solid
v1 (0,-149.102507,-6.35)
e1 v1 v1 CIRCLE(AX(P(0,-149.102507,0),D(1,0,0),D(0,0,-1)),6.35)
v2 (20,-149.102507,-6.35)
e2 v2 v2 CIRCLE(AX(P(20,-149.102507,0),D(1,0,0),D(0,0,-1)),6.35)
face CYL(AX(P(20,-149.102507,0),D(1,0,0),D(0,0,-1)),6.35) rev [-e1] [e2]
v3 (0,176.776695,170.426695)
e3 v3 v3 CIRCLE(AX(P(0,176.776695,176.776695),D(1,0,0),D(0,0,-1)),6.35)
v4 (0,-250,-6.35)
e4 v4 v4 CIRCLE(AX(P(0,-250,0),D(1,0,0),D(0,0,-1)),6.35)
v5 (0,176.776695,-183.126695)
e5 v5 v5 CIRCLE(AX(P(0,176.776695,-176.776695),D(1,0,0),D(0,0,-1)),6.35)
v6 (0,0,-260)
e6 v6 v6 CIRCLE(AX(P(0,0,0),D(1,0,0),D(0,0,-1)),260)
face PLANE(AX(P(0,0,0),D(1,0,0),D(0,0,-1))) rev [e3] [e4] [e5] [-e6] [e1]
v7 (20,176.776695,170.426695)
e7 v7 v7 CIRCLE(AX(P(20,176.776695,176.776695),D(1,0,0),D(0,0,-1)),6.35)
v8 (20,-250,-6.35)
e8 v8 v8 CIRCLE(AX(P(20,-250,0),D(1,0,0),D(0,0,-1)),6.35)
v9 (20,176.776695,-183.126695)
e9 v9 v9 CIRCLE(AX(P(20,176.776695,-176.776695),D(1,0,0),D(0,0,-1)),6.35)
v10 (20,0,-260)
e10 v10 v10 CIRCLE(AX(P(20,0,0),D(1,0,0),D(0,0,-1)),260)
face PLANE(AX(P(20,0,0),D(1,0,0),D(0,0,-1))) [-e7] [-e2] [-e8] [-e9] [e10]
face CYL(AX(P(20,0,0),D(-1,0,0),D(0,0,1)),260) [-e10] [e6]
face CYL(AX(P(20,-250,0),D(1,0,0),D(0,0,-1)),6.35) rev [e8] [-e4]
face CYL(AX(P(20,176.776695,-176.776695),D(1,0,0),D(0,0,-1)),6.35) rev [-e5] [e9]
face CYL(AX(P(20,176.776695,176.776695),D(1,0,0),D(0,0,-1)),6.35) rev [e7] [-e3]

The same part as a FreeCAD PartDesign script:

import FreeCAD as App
import Part
import Sketcher
Q = App.Units.Quantity

doc = App.newDocument("Part")
body = doc.addObject("PartDesign::Body", "Body")

# Sketch on YZ plane
sketch1 = body.newObject("Sketcher::SketchObject", "Sketch")
sketch1.AttachmentSupport = (doc.getObject("YZ_Plane"), [""])
sketch1.MapMode = "FlatFace"
sketch1.addGeometry(Part.Circle(App.Vector(0, 0, 0), App.Vector(0, 0, 1), 260), False)
sketch1.addConstraint(Sketcher.Constraint("Coincident", 0, 3, -1, 1))
sketch1.addConstraint(Sketcher.Constraint("Diameter", 0, Q("520 mm")))
pad1 = body.newObject("PartDesign::Pad", "Pad")
pad1.Profile = sketch1
pad1.Length = 20

# Sketch on YZ plane
sketch2 = body.newObject("Sketcher::SketchObject", "Sketch001")
sketch2.AttachmentSupport = (doc.getObject("YZ_Plane"), [""])
sketch2.MapMode = "FlatFace"
sketch2.AttachmentOffset = App.Placement(App.Vector(0, 0, 20), App.Rotation())
sketch2.addGeometry(Part.Circle(App.Vector(177, 177, 0), App.Vector(0, 0, 1), 5), False)
sketch2.addGeometry(Part.Circle(App.Vector(177, -177, 0), App.Vector(0, 0, 1), 5), False)
sketch2.addGeometry(Part.Circle(App.Vector(-250, 0, 0), App.Vector(0, 0, 1), 5), False)
sketch2.addGeometry(Part.Circle(App.Vector(-149, 0, 0), App.Vector(0, 0, 1), 5), False)
sketch2.addConstraint(Sketcher.Constraint("Equal", 0, 1))
sketch2.addConstraint(Sketcher.Constraint("Equal", 1, 2))
sketch2.addConstraint(Sketcher.Constraint("Equal", 2, 3))
sketch2.addConstraint(Sketcher.Constraint("Symmetric", 0, 3, 1, 3, -1))
sketch2.addConstraint(Sketcher.Constraint("PointOnObject", 2, 3, -1))
sketch2.addConstraint(Sketcher.Constraint("PointOnObject", 3, 3, -1))
sketch2.addConstraint(Sketcher.Constraint("DistanceX", 2, 3, -1, 1, Q("250 mm")))
sketch2.addConstraint(Sketcher.Constraint("Diameter", 0, Q("10.71626 mm")))
sketch2.addConstraint(Sketcher.Constraint("DistanceX", 3, 3, 0, 3, Q("325.879202 mm")))
sketch2.addConstraint(Sketcher.Constraint("DistanceY", 1, 3, 0, 3, Q("353.553391 mm")))
sketch2.addConstraint(Sketcher.Constraint("DistanceX", -1, 1, 0, 3, Q("176.776695 mm")))
doc.recompute()
hole = body.newObject("PartDesign::Hole", "Hole")
hole.Profile = sketch2
hole.ThreadType = "None"
hole.Diameter = 10.71626
hole.DepthType = "Dimension"
hole.Depth = 70.4
hole.DrillPoint = "Angled"
hole.DrillPointAngle = 118
hole.HoleCutType = "Counterbore"
hole.HoleCutDiameter = 12.7
hole.HoleCutDepth = 64.5

doc.recompute()
